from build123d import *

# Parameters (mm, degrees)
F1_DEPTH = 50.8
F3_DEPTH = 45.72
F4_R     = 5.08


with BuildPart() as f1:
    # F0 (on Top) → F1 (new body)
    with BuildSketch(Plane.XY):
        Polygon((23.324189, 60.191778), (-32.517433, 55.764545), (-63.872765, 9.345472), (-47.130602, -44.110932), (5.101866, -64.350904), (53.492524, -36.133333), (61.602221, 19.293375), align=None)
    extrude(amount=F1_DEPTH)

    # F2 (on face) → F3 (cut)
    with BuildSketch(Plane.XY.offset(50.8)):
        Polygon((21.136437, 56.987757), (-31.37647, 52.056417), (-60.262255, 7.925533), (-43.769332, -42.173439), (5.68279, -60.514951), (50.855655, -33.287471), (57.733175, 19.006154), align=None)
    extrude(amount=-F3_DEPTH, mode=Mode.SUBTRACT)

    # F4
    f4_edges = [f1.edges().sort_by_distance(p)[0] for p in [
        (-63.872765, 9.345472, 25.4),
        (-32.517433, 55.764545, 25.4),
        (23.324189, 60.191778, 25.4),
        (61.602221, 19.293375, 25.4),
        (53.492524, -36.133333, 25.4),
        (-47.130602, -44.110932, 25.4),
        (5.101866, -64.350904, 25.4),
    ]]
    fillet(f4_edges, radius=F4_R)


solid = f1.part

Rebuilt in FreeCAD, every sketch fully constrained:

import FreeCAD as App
import Part
import Sketcher

V = App.Vector
Q = App.Units.Quantity


def edges_at(feature, points):
    """Names of the edges that pass closest to the given points."""
    edges = feature.Shape.Edges
    near = lambda p: min(range(len(edges)), key=lambda i: edges[i].distToShape(Part.Vertex(*p))[0])
    return sorted({f"Edge{near(p) + 1}" for p in points})


def add_polygon(sketch, points):
    """Adds a closed chain of lines whose ends are joined by coincident constraints."""
    first, n = sketch.GeometryCount, len(points)
    for a, b in zip(points, points[1:] + points[:1]):
        sketch.addGeometry(Part.LineSegment(App.Vector(*a, 0), App.Vector(*b, 0)), False)
    for i in range(n):
        sketch.addConstraint(Sketcher.Constraint("Coincident", first + i, 2, first + (i + 1) % n, 1))

doc = App.newDocument("Part")
body = doc.addObject("PartDesign::Body", "Body")

# Sketch on XY plane
sketch1 = doc.addObject("Sketcher::SketchObject", "Sketch")
body.addObject(sketch1)
sketch1.AttachmentSupport = (doc.XY_Plane, [""])
sketch1.MapMode = "FlatFace"
add_polygon(sketch1, [(23, 60), (-33, 56), (-64, 9), (-47, -44), (5, -64), (53, -36), (62, 19)])  # lines 0-6
sketch1.addConstraint([
    Sketcher.Constraint("Equal", 0, 1),
    Sketcher.Constraint("Equal", 1, 2),
    Sketcher.Constraint("Equal", 2, 3),
    Sketcher.Constraint("Equal", 3, 4),
    Sketcher.Constraint("Equal", 4, 5),
    Sketcher.Constraint("Equal", 5, 6),
    Sketcher.Constraint("DistanceY", 3, 2, -1, 1, Q("2.5335002 in")),
    Sketcher.Constraint("DistanceX", 0, 2, 3, 2, Q("37.619299 mm")),
    Sketcher.Constraint("DistanceY", 2, 2, 4, 2, Q("7.977599 mm")),
    Sketcher.Constraint("DistanceY", -1, 1, 1, 2, Q("9.345472 mm")),
    Sketcher.Constraint("DistanceY", 2, 2, -1, 1, Q("44.110932 mm")),
    Sketcher.Constraint("DistanceX", -1, 1, 5, 2, Q("61.602221 mm")),
    Sketcher.Constraint("DistanceX", -1, 1, 6, 2, Q("23.324189 mm")),
    Sketcher.Constraint("DistanceX", 2, 2, 0, 2, Q("14.613169 mm")),
])
pad1 = doc.addObject("PartDesign::Pad", "Pad")
body.addObject(pad1)
pad1.Profile = sketch1
pad1.Length = Q("2 in")

# Sketch on XY plane
sketch2 = doc.addObject("Sketcher::SketchObject", "Sketch001")
body.addObject(sketch2)
sketch2.AttachmentSupport = (doc.XY_Plane, [""])
sketch2.MapMode = "FlatFace"
sketch2.AttachmentOffset = App.Placement(V(0, 0, 2 * 25.4), App.Rotation())
add_polygon(sketch2, [(21, 57), (-31, 52), (-60, 8), (-44, -42), (6, -61), (51, -33), (58, 19)])  # lines 0-6
sketch2.addConstraint([
    Sketcher.Constraint("Equal", 0, 1),
    Sketcher.Constraint("Equal", 1, 2),
    Sketcher.Constraint("Equal", 2, 3),
    Sketcher.Constraint("Equal", 3, 4),
    Sketcher.Constraint("Equal", 4, 5),
    Sketcher.Constraint("Equal", 5, 6),
    Sketcher.Constraint("Distance", 4, Q("52.743942 mm")),
    Sketcher.Constraint("DistanceX", 0, 2, -1, 1, Q("31.37647 mm")),
    Sketcher.Constraint("DistanceY", 2, 2, -1, 1, Q("42.173439 mm")),
    Sketcher.Constraint("DistanceX", -1, 1, 3, 2, Q("5.68279 mm")),
    Sketcher.Constraint("DistanceY", 3, 2, -1, 1, Q("60.514951 mm")),
    Sketcher.Constraint("DistanceY", 4, 2, -1, 1, Q("33.287471 mm")),
    Sketcher.Constraint("DistanceY", 3, 2, 0, 2, Q("112.571368 mm")),
    Sketcher.Constraint("DistanceX", 4, 2, 5, 2, Q("6.87752 mm")),
])
pocket1 = doc.addObject("PartDesign::Pocket", "Pocket")
body.addObject(pocket1)
pocket1.Profile = sketch2
pocket1.Length = Q("1.8 in")
doc.recompute()

fillet = doc.addObject("PartDesign::Fillet", "Fillet")
body.addObject(fillet)
fillet.Base = (pocket1, edges_at(pocket1, [
    (-63.873, 9.345, 25.4),
    (-32.517, 55.765, 25.4),
    (23.324, 60.192, 25.4),
    (61.602, 19.293, 25.4),
    (53.493, -36.133, 25.4),
    (-47.131, -44.111, 25.4),
    (5.102, -64.351, 25.4),
]))
fillet.Radius = Q("0.2 in")

doc.recompute()
